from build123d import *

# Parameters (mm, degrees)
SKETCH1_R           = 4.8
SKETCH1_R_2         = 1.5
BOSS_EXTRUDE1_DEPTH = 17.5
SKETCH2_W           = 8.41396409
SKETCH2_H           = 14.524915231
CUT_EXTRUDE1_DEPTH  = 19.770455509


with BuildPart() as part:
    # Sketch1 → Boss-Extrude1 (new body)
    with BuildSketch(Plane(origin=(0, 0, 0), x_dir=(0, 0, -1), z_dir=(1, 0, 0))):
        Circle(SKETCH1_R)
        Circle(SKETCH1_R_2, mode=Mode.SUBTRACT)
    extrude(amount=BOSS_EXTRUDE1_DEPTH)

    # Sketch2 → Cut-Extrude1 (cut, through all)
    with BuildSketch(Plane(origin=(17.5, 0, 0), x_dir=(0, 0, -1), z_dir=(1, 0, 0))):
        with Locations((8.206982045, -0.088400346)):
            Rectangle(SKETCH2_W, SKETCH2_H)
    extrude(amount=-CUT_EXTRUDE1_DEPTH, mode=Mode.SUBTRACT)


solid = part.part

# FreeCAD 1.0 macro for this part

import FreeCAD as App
import Part
import Sketcher

doc = App.newDocument("Part")
body = doc.addObject("PartDesign::Body", "Body")

# Sketch on YZ plane
sketch1 = doc.addObject("Sketcher::SketchObject", "Sketch")
body.addObject(sketch1)
sketch1.AttachmentSupport = (doc.YZ_Plane, [""])
sketch1.MapMode = "FlatFace"
sketch1.addGeometry([
    Part.Circle(App.Vector(0, 0, 0), App.Vector(0, 0, 1), 4.8),
    Part.Circle(App.Vector(0, 0, 0), App.Vector(0, 0, 1), 1.5),
], False)
sketch1.addConstraint([
    Sketcher.Constraint("Coincident", 0, 3, -1, 1),
    Sketcher.Constraint("Coincident", 1, 3, -1, 1),
    Sketcher.Constraint("Diameter", 1, 3.0),
    Sketcher.Constraint("Diameter", 0, 9.6),
])
pad1 = doc.addObject("PartDesign::Pad", "Pad")
body.addObject(pad1)
pad1.Profile = sketch1
pad1.Length = 17.5

# Sketch on YZ plane
sketch2 = doc.addObject("Sketcher::SketchObject", "Sketch001")
body.addObject(sketch2)
sketch2.AttachmentSupport = (doc.YZ_Plane, [""])
sketch2.MapMode = "FlatFace"
sketch2.AttachmentOffset = App.Placement(App.Vector(0, 0, 17.5), App.Rotation())
sketch2.addGeometry([
    Part.LineSegment(App.Vector(7, -4, 0), App.Vector(-7, -4, 0)),
    Part.LineSegment(App.Vector(-7, -4, 0), App.Vector(-7, -12, 0)),
    Part.LineSegment(App.Vector(-7, -12, 0), App.Vector(7, -12, 0)),
    Part.LineSegment(App.Vector(7, -12, 0), App.Vector(7, -4, 0)),
], False)
sketch2.addConstraint([
    Sketcher.Constraint("Coincident", 0, 2, 1, 1),
    Sketcher.Constraint("Coincident", 1, 2, 2, 1),
    Sketcher.Constraint("Coincident", 2, 2, 3, 1),
    Sketcher.Constraint("Coincident", 3, 2, 0, 1),
    Sketcher.Constraint("Horizontal", 0),
    Sketcher.Constraint("Vertical", 1),
    Sketcher.Constraint("Horizontal", 2),
    Sketcher.Constraint("Vertical", 3),
    Sketcher.Constraint("DistanceY", 0, 2, -1, 1, 4.0),
    Sketcher.Constraint("DistanceX", 0, 2, 0, 1, 14.524915),
    Sketcher.Constraint("DistanceY", 1, 2, 1, 1, 8.413964),
    Sketcher.Constraint("DistanceX", 0, 2, -1, 1, 7.350858),
])
pocket1 = doc.addObject("PartDesign::Pocket", "Pocket")
body.addObject(pocket1)
pocket1.Profile = sketch2
pocket1.Type = "ThroughAll"

doc.recompute()
